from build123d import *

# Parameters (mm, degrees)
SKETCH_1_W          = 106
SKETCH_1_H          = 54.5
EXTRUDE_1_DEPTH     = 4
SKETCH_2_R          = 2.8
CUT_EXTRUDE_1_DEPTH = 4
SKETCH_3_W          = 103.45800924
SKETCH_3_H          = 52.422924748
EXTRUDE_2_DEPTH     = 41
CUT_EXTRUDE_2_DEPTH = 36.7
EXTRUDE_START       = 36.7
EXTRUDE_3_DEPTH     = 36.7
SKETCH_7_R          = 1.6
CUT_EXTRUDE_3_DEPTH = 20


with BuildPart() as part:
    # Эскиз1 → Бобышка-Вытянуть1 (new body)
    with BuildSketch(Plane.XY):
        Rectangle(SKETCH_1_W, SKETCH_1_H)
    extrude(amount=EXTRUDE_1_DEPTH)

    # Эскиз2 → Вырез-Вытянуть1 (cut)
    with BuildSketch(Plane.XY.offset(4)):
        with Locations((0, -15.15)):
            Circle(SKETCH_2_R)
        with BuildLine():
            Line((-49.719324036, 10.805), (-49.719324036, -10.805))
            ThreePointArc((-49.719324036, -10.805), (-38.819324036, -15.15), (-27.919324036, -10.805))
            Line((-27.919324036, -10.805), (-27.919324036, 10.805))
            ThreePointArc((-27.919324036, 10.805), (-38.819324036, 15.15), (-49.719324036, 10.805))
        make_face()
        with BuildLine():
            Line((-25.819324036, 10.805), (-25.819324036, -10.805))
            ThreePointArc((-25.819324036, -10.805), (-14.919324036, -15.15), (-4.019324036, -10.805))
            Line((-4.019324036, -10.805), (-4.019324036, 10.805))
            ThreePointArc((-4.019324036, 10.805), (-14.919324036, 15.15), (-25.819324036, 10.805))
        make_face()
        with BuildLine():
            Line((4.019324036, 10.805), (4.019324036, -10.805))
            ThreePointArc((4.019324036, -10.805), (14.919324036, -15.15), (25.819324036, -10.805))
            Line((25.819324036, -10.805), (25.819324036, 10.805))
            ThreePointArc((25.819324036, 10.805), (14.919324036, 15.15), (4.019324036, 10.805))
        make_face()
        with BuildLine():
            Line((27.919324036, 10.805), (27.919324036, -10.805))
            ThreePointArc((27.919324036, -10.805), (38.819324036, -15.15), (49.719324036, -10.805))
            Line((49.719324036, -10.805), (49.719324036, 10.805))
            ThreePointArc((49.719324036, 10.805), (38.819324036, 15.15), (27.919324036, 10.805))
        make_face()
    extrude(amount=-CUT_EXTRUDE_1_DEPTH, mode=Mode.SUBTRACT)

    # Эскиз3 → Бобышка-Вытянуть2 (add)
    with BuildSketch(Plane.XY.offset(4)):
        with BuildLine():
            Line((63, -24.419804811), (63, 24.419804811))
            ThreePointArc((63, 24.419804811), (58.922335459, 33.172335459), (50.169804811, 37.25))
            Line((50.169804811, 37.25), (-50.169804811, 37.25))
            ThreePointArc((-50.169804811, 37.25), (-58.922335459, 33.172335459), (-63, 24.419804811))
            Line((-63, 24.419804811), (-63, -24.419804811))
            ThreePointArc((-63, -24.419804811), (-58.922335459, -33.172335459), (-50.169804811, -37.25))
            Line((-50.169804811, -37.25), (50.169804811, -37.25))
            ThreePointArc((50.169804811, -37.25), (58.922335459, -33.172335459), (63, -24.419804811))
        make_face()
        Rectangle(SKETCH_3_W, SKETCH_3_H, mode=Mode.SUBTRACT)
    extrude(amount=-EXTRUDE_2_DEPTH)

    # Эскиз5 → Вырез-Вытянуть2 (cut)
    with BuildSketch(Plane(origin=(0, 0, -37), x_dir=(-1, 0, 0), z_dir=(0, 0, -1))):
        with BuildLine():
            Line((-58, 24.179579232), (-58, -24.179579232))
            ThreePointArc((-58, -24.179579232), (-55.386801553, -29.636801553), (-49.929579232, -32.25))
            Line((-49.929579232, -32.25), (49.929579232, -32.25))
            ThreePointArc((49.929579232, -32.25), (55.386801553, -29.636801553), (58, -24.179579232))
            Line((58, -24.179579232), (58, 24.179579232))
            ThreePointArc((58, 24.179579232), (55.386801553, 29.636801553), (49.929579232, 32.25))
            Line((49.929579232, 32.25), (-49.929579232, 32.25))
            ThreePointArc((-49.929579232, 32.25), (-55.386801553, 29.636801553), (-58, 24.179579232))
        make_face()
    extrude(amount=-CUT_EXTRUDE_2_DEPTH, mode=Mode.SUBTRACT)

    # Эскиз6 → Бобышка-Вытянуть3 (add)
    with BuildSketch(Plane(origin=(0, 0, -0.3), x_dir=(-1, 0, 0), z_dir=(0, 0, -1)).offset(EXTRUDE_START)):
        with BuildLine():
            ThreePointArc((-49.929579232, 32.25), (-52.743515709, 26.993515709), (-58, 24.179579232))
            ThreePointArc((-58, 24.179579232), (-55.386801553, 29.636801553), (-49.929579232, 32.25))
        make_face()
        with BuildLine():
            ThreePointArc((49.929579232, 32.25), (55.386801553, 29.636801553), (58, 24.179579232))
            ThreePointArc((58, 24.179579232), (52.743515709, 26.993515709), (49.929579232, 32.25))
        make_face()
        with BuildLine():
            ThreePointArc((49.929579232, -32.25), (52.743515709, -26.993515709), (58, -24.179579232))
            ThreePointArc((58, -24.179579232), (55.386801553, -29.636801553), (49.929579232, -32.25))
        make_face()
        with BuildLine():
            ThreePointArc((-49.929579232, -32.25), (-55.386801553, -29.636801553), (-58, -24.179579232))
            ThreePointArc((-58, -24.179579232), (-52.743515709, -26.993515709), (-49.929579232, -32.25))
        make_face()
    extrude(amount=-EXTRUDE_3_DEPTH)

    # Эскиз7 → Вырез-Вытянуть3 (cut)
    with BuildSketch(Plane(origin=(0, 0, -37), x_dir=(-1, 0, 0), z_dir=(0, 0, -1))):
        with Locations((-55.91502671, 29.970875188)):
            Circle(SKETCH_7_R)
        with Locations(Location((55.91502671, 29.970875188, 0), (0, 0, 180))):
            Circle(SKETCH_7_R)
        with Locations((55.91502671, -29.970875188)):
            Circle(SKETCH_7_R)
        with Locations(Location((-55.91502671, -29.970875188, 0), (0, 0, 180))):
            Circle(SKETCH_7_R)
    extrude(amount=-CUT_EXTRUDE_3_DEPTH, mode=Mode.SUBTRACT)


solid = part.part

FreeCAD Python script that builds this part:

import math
import FreeCAD as App
import Part
import Sketcher

V = App.Vector

doc = App.newDocument("Part")
body = doc.addObject("PartDesign::Body", "Body")

# Sketch on XY plane
sketch1 = body.newObject("Sketcher::SketchObject", "Sketch")
sketch1.AttachmentSupport = (doc.getObject("XY_Plane"), [""])
sketch1.MapMode = "FlatFace"
sketch1.addGeometry(Part.LineSegment(V(-53, 27, 0), V(-53, -27, 0)), False)
sketch1.addGeometry(Part.LineSegment(V(-53, -27, 0), V(53, -27, 0)), False)
sketch1.addGeometry(Part.LineSegment(V(53, -27, 0), V(53, 27, 0)), False)
sketch1.addGeometry(Part.LineSegment(V(53, 27, 0), V(-53, 27, 0)), False)
sketch1.addConstraint(Sketcher.Constraint("Coincident", 0, 2, 1, 1))
sketch1.addConstraint(Sketcher.Constraint("Coincident", 1, 2, 2, 1))
sketch1.addConstraint(Sketcher.Constraint("Coincident", 2, 2, 3, 1))
sketch1.addConstraint(Sketcher.Constraint("Coincident", 3, 2, 0, 1))
sketch1.addConstraint(Sketcher.Constraint("Vertical", 0))
sketch1.addConstraint(Sketcher.Constraint("Horizontal", 1))
sketch1.addConstraint(Sketcher.Constraint("Vertical", 2))
sketch1.addConstraint(Sketcher.Constraint("Horizontal", 3))
sketch1.addConstraint(Sketcher.Constraint("Symmetric", 0, 2, 2, 2, -1, 1))
sketch1.addConstraint(Sketcher.Constraint("DistanceX", 1, 1, 1, 2, 106.0))
sketch1.addConstraint(Sketcher.Constraint("DistanceY", 0, 2, 0, 1, 54.5))
pad1 = body.newObject("PartDesign::Pad", "Pad")
pad1.Profile = sketch1
pad1.Length = 4

# Sketch on XY plane
sketch2 = body.newObject("Sketcher::SketchObject", "Sketch001")
sketch2.AttachmentSupport = (doc.getObject("XY_Plane"), [""])
sketch2.MapMode = "FlatFace"
sketch2.AttachmentOffset = App.Placement(V(0, 0, 4), App.Rotation())
sketch2.addGeometry(Part.Circle(V(0, -15.2, 0), V(0, 0, 1), 2.8), False)
sketch2.addGeometry(Part.LineSegment(V(-49.7, 10.8, 0), V(-49.7, -10.8, 0)), False)
sketch2.addGeometry(Part.ArcOfCircle(Part.Circle(V(-38.8, 0.7, 0), V(0, 0, 1), 15.8), math.radians(-133), math.radians(-47)), False)
sketch2.addGeometry(Part.LineSegment(V(-27.9, -10.8, 0), V(-27.9, 10.8, 0)), False)
sketch2.addGeometry(Part.ArcOfCircle(Part.Circle(V(-38.8, -0.7, 0), V(0, 0, 1), 15.8), math.radians(47), math.radians(133)), False)
sketch2.addGeometry(Part.LineSegment(V(-25.8, 10.8, 0), V(-25.8, -10.8, 0)), False)
sketch2.addGeometry(Part.ArcOfCircle(Part.Circle(V(-14.9, 0.7, 0), V(0, 0, 1), 15.8), math.radians(-133), math.radians(-47)), False)
sketch2.addGeometry(Part.LineSegment(V(-4, -10.8, 0), V(-4, 10.8, 0)), False)
sketch2.addGeometry(Part.ArcOfCircle(Part.Circle(V(-14.9, -0.7, 0), V(0, 0, 1), 15.8), math.radians(47), math.radians(133)), False)
sketch2.addGeometry(Part.LineSegment(V(4, 10.8, 0), V(4, -10.8, 0)), False)
sketch2.addGeometry(Part.ArcOfCircle(Part.Circle(V(14.9, 0.7, 0), V(0, 0, 1), 15.8), math.radians(-133), math.radians(-47)), False)
sketch2.addGeometry(Part.LineSegment(V(25.8, -10.8, 0), V(25.8, 10.8, 0)), False)
sketch2.addGeometry(Part.ArcOfCircle(Part.Circle(V(14.9, -0.7, 0), V(0, 0, 1), 15.8), math.radians(47), math.radians(133)), False)
sketch2.addGeometry(Part.LineSegment(V(27.9, 10.8, 0), V(27.9, -10.8, 0)), False)
sketch2.addGeometry(Part.ArcOfCircle(Part.Circle(V(38.8, 0.7, 0), V(0, 0, 1), 15.8), math.radians(-133), math.radians(-47)), False)
sketch2.addGeometry(Part.LineSegment(V(49.7, -10.8, 0), V(49.7, 10.8, 0)), False)
sketch2.addGeometry(Part.ArcOfCircle(Part.Circle(V(38.8, -0.7, 0), V(0, 0, 1), 15.8), math.radians(47), math.radians(133)), False)
sketch2.addConstraint(Sketcher.Constraint("Coincident", 1, 2, 2, 1))
sketch2.addConstraint(Sketcher.Constraint("Coincident", 2, 2, 3, 1))
sketch2.addConstraint(Sketcher.Constraint("Coincident", 3, 2, 4, 1))
sketch2.addConstraint(Sketcher.Constraint("Coincident", 4, 2, 1, 1))
sketch2.addConstraint(Sketcher.Constraint("Coincident", 5, 2, 6, 1))
sketch2.addConstraint(Sketcher.Constraint("Coincident", 6, 2, 7, 1))
sketch2.addConstraint(Sketcher.Constraint("Coincident", 7, 2, 8, 1))
sketch2.addConstraint(Sketcher.Constraint("Coincident", 8, 2, 5, 1))
sketch2.addConstraint(Sketcher.Constraint("Coincident", 9, 2, 10, 1))
sketch2.addConstraint(Sketcher.Constraint("Coincident", 10, 2, 11, 1))
sketch2.addConstraint(Sketcher.Constraint("Coincident", 11, 2, 12, 1))
sketch2.addConstraint(Sketcher.Constraint("Coincident", 12, 2, 9, 1))
sketch2.addConstraint(Sketcher.Constraint("Coincident", 13, 2, 14, 1))
sketch2.addConstraint(Sketcher.Constraint("Coincident", 14, 2, 15, 1))
sketch2.addConstraint(Sketcher.Constraint("Coincident", 15, 2, 16, 1))
sketch2.addConstraint(Sketcher.Constraint("Coincident", 16, 2, 13, 1))
sketch2.addConstraint(Sketcher.Constraint("Vertical", 1))
sketch2.addConstraint(Sketcher.Constraint("Vertical", 3))
sketch2.addConstraint(Sketcher.Constraint("Vertical", 5))
sketch2.addConstraint(Sketcher.Constraint("Vertical", 7))
sketch2.addConstraint(Sketcher.Constraint("Vertical", 9))
sketch2.addConstraint(Sketcher.Constraint("Vertical", 11))
sketch2.addConstraint(Sketcher.Constraint("Vertical", 13))
sketch2.addConstraint(Sketcher.Constraint("Vertical", 15))
sketch2.addConstraint(Sketcher.Constraint("Equal", 2, 4))
sketch2.addConstraint(Sketcher.Constraint("Equal", 4, 6))
sketch2.addConstraint(Sketcher.Constraint("Equal", 6, 8))
sketch2.addConstraint(Sketcher.Constraint("Equal", 8, 10))
sketch2.addConstraint(Sketcher.Constraint("Equal", 10, 12))
sketch2.addConstraint(Sketcher.Constraint("Equal", 12, 14))
sketch2.addConstraint(Sketcher.Constraint("Equal", 14, 16))
sketch2.addConstraint(Sketcher.Constraint("Symmetric", 8, 3, 10, 3, -1, 1))
sketch2.addConstraint(Sketcher.Constraint("Symmetric", 6, 3, 12, 3, -1, 1))
sketch2.addConstraint(Sketcher.Constraint("Symmetric", 4, 3, 14, 3, -1, 1))
sketch2.addConstraint(Sketcher.Constraint("Symmetric", 2, 3, 16, 3, -1, 1))
sketch2.addConstraint(Sketcher.Constraint("Symmetric", 6, 3, 10, 3, -2))
sketch2.addConstraint(Sketcher.Constraint("Symmetric", 2, 3, 14, 3, -2))
sketch2.addConstraint(Sketcher.Constraint("PointOnObject", 0, 3, -2))
sketch2.addConstraint(Sketcher.Constraint("Horizontal", 2, 3, 6, 3))
sketch2.addConstraint(Sketcher.Constraint("Horizontal", 1, 2, 2, 2))
sketch2.addConstraint(Sketcher.Constraint("Horizontal", 2, 2, 5, 2))
sketch2.addConstraint(Sketcher.Constraint("Horizontal", 5, 2, 6, 2))
sketch2.addConstraint(Sketcher.Constraint("Horizontal", 6, 2, 9, 2))
sketch2.addConstraint(Sketcher.Constraint("Horizontal", 9, 2, 10, 2))
sketch2.addConstraint(Sketcher.Constraint("Horizontal", 10, 2, 13, 2))
sketch2.addConstraint(Sketcher.Constraint("Horizontal", 13, 2, 14, 2))
sketch2.addConstraint(Sketcher.Constraint("Diameter", 0, 5.6))
sketch2.addConstraint(Sketcher.Constraint("DistanceX", 2, 2, 8, 3, 13.0))
sketch2.addConstraint(Sketcher.Constraint("DistanceY", 1, 2, 1, 1, 21.61))
sketch2.addConstraint(Sketcher.Constraint("DistanceX", 2, 3, 6, 3, 23.9))
sketch2.addConstraint(Sketcher.Constraint("DistanceY", 0, 3, -1, 1, 15.15))
sketch2.addConstraint(Sketcher.Constraint("Radius", 2, 15.844537))
sketch2.addConstraint(Sketcher.Constraint("DistanceX", 6, 3, 10, 3, 29.838648))
pocket1 = body.newObject("PartDesign::Pocket", "Pocket")
pocket1.Profile = sketch2
pocket1.Length = 4

# Sketch on XY plane
sketch3 = body.newObject("Sketcher::SketchObject", "Sketch002")
sketch3.AttachmentSupport = (doc.getObject("XY_Plane"), [""])
sketch3.MapMode = "FlatFace"
sketch3.AttachmentOffset = App.Placement(V(0, 0, 4), App.Rotation())
sketch3.addGeometry(Part.LineSegment(V(63, -24, 0), V(63, 24, 0)), False)
sketch3.addGeometry(Part.ArcOfCircle(Part.Circle(V(49, 23, 0), V(0, 0, 1), 14), math.radians(5), math.radians(85)), False)
sketch3.addGeometry(Part.LineSegment(V(50, 37, 0), V(-50, 37, 0)), False)
sketch3.addGeometry(Part.ArcOfCircle(Part.Circle(V(-49, 23, 0), V(0, 0, 1), 14), math.radians(95), math.radians(175)), False)
sketch3.addGeometry(Part.LineSegment(V(-63, 24, 0), V(-63, -24, 0)), False)
sketch3.addGeometry(Part.ArcOfCircle(Part.Circle(V(-49, -23, 0), V(0, 0, 1), 14), math.radians(-175), math.radians(-95)), False)
sketch3.addGeometry(Part.LineSegment(V(-50, -37, 0), V(50, -37, 0)), False)
sketch3.addGeometry(Part.ArcOfCircle(Part.Circle(V(49, -23, 0), V(0, 0, 1), 14), math.radians(-85), math.radians(-5)), False)
sketch3.addGeometry(Part.LineSegment(V(52, -26, 0), V(-52, -26, 0)), False)
sketch3.addGeometry(Part.LineSegment(V(-52, -26, 0), V(-52, 26, 0)), False)
sketch3.addGeometry(Part.LineSegment(V(-52, 26, 0), V(52, 26, 0)), False)
sketch3.addGeometry(Part.LineSegment(V(52, 26, 0), V(52, -26, 0)), False)
sketch3.addConstraint(Sketcher.Constraint("Coincident", 0, 2, 1, 1))
sketch3.addConstraint(Sketcher.Constraint("Coincident", 1, 2, 2, 1))
sketch3.addConstraint(Sketcher.Constraint("Coincident", 2, 2, 3, 1))
sketch3.addConstraint(Sketcher.Constraint("Coincident", 3, 2, 4, 1))
sketch3.addConstraint(Sketcher.Constraint("Coincident", 4, 2, 5, 1))
sketch3.addConstraint(Sketcher.Constraint("Coincident", 5, 2, 6, 1))
sketch3.addConstraint(Sketcher.Constraint("Coincident", 6, 2, 7, 1))
sketch3.addConstraint(Sketcher.Constraint("Coincident", 7, 2, 0, 1))
sketch3.addConstraint(Sketcher.Constraint("Coincident", 8, 2, 9, 1))
sketch3.addConstraint(Sketcher.Constraint("Coincident", 9, 2, 10, 1))
sketch3.addConstraint(Sketcher.Constraint("Coincident", 10, 2, 11, 1))
sketch3.addConstraint(Sketcher.Constraint("Coincident", 11, 2, 8, 1))
sketch3.addConstraint(Sketcher.Constraint("Vertical", 0))
sketch3.addConstraint(Sketcher.Constraint("Horizontal", 2))
sketch3.addConstraint(Sketcher.Constraint("Vertical", 4))
sketch3.addConstraint(Sketcher.Constraint("Horizontal", 6))
sketch3.addConstraint(Sketcher.Constraint("Horizontal", 8))
sketch3.addConstraint(Sketcher.Constraint("Vertical", 9))
sketch3.addConstraint(Sketcher.Constraint("Horizontal", 10))
sketch3.addConstraint(Sketcher.Constraint("Vertical", 11))
sketch3.addConstraint(Sketcher.Constraint("Equal", 1, 3))
sketch3.addConstraint(Sketcher.Constraint("Equal", 3, 5))
sketch3.addConstraint(Sketcher.Constraint("Equal", 5, 7))
sketch3.addConstraint(Sketcher.Constraint("Symmetric", 1, 3, 5, 3, -1, 1))
sketch3.addConstraint(Sketcher.Constraint("Symmetric", 3, 3, 7, 3, -1, 1))
sketch3.addConstraint(Sketcher.Constraint("Symmetric", 8, 2, 10, 2, -1, 1))
sketch3.addConstraint(Sketcher.Constraint("Symmetric", 1, 3, 3, 3, -2))
sketch3.addConstraint(Sketcher.Constraint("Horizontal", 0, 2, 3, 2))
sketch3.addConstraint(Sketcher.Constraint("Vertical", 2, 2, 5, 2))
sketch3.addConstraint(Sketcher.Constraint("DistanceX", -1, 1, 0, 2, 63.0))
sketch3.addConstraint(Sketcher.Constraint("DistanceY", 5, 2, 2, 2, 74.5))
sketch3.addConstraint(Sketcher.Constraint("Radius", 1, 14.102328))
sketch3.addConstraint(Sketcher.Constraint("DistanceX", 2, 2, 2, 1, 100.33961))
sketch3.addConstraint(Sketcher.Constraint("DistanceX", 8, 2, 8, 1, 103.458009))
sketch3.addConstraint(Sketcher.Constraint("DistanceY", 0, 1, 0, 2, 48.83961))
sketch3.addConstraint(Sketcher.Constraint("DistanceY", 9, 1, 9, 2, 52.422925))
pad2 = body.newObject("PartDesign::Pad", "Pad001")
pad2.Profile = sketch3
pad2.Length = 41
pad2.Reversed = True

# Sketch on XY plane
sketch4 = body.newObject("Sketcher::SketchObject", "Sketch003")
sketch4.AttachmentSupport = (doc.getObject("XY_Plane"), [""])
sketch4.MapMode = "FlatFace"
sketch4.AttachmentOffset = App.Placement(V(0, 0, -37), App.Rotation())
sketch4.addGeometry(Part.LineSegment(V(58, 24, 0), V(58, -24, 0)), False)
sketch4.addGeometry(Part.ArcOfCircle(Part.Circle(V(49, -23, 0), V(0, 0, 1), 9), math.radians(-84), math.radians(-6)), False)
sketch4.addGeometry(Part.LineSegment(V(50, -32, 0), V(-50, -32, 0)), False)
sketch4.addGeometry(Part.ArcOfCircle(Part.Circle(V(-49, -23, 0), V(0, 0, 1), 9), math.radians(-174), math.radians(-96)), False)
sketch4.addGeometry(Part.LineSegment(V(-58, -24, 0), V(-58, 24, 0)), False)
sketch4.addGeometry(Part.ArcOfCircle(Part.Circle(V(-49, 23, 0), V(0, 0, 1), 9), math.radians(96), math.radians(174)), False)
sketch4.addGeometry(Part.LineSegment(V(-50, 32, 0), V(50, 32, 0)), False)
sketch4.addGeometry(Part.ArcOfCircle(Part.Circle(V(49, 23, 0), V(0, 0, 1), 9), math.radians(6), math.radians(84)), False)
sketch4.addConstraint(Sketcher.Constraint("Coincident", 0, 2, 1, 2))
sketch4.addConstraint(Sketcher.Constraint("Coincident", 1, 1, 2, 1))
sketch4.addConstraint(Sketcher.Constraint("Coincident", 2, 2, 3, 2))
sketch4.addConstraint(Sketcher.Constraint("Coincident", 3, 1, 4, 1))
sketch4.addConstraint(Sketcher.Constraint("Coincident", 4, 2, 5, 2))
sketch4.addConstraint(Sketcher.Constraint("Coincident", 5, 1, 6, 1))
sketch4.addConstraint(Sketcher.Constraint("Coincident", 6, 2, 7, 2))
sketch4.addConstraint(Sketcher.Constraint("Coincident", 7, 1, 0, 1))
sketch4.addConstraint(Sketcher.Constraint("Vertical", 0))
sketch4.addConstraint(Sketcher.Constraint("Horizontal", 2))
sketch4.addConstraint(Sketcher.Constraint("Vertical", 4))
sketch4.addConstraint(Sketcher.Constraint("Horizontal", 6))
sketch4.addConstraint(Sketcher.Constraint("Equal", 1, 3))
sketch4.addConstraint(Sketcher.Constraint("Equal", 3, 5))
sketch4.addConstraint(Sketcher.Constraint("Equal", 5, 7))
sketch4.addConstraint(Sketcher.Constraint("Symmetric", 1, 3, 5, 3, -1, 1))
sketch4.addConstraint(Sketcher.Constraint("Symmetric", 3, 3, 7, 3, -1, 1))
sketch4.addConstraint(Sketcher.Constraint("Symmetric", 1, 3, 3, 3, -2))
sketch4.addConstraint(Sketcher.Constraint("Horizontal", 0, 2, 3, 1))
sketch4.addConstraint(Sketcher.Constraint("Vertical", 2, 2, 5, 1))
sketch4.addConstraint(Sketcher.Constraint("DistanceX", -1, 1, 0, 2, 58.0))
sketch4.addConstraint(Sketcher.Constraint("DistanceY", 2, 2, 5, 1, 64.5))
sketch4.addConstraint(Sketcher.Constraint("Radius", 1, 9.102328))
sketch4.addConstraint(Sketcher.Constraint("DistanceX", 2, 2, 2, 1, 99.859158))
sketch4.addConstraint(Sketcher.Constraint("DistanceY", 0, 2, 0, 1, 48.359158))
pocket2 = body.newObject("PartDesign::Pocket", "Pocket001")
pocket2.Profile = sketch4
pocket2.Length = 36.7
pocket2.Reversed = True

# Sketch on XY plane
sketch5 = body.newObject("Sketcher::SketchObject", "Sketch004")
sketch5.AttachmentSupport = (doc.getObject("XY_Plane"), [""])
sketch5.MapMode = "FlatFace"
sketch5.AttachmentOffset = App.Placement(V(0, 0, -37), App.Rotation())
sketch5.addGeometry(Part.ArcOfCircle(Part.Circle(V(60, 34, 0), V(0, 0, 1), 10), math.radians(-169), math.radians(-101)), False)
sketch5.addGeometry(Part.ArcOfCircle(Part.Circle(V(49, 23, 0), V(0, 0, 1), 9), math.radians(6), math.radians(84)), False)
sketch5.addGeometry(Part.ArcOfCircle(Part.Circle(V(-49, 23, 0), V(0, 0, 1), 9), math.radians(96), math.radians(174)), False)
sketch5.addGeometry(Part.ArcOfCircle(Part.Circle(V(-60, 34, 0), V(0, 0, 1), 10), math.radians(-79), math.radians(-11)), False)
sketch5.addGeometry(Part.ArcOfCircle(Part.Circle(V(-60, -34, 0), V(0, 0, 1), 10), math.radians(11), math.radians(79)), False)
sketch5.addGeometry(Part.ArcOfCircle(Part.Circle(V(-49, -23, 0), V(0, 0, 1), 9), math.radians(-174), math.radians(-96)), False)
sketch5.addGeometry(Part.ArcOfCircle(Part.Circle(V(49, -23, 0), V(0, 0, 1), 9), math.radians(-84), math.radians(-6)), False)
sketch5.addGeometry(Part.ArcOfCircle(Part.Circle(V(60, -34, 0), V(0, 0, 1), 10), math.radians(101), math.radians(169)), False)
sketch5.addConstraint(Sketcher.Constraint("Coincident", 0, 1, 1, 2))
sketch5.addConstraint(Sketcher.Constraint("Coincident", 1, 1, 0, 2))
sketch5.addConstraint(Sketcher.Constraint("Coincident", 2, 1, 3, 2))
sketch5.addConstraint(Sketcher.Constraint("Coincident", 3, 1, 2, 2))
sketch5.addConstraint(Sketcher.Constraint("Coincident", 4, 1, 5, 2))
sketch5.addConstraint(Sketcher.Constraint("Coincident", 5, 1, 4, 2))
sketch5.addConstraint(Sketcher.Constraint("Coincident", 6, 1, 7, 2))
sketch5.addConstraint(Sketcher.Constraint("Coincident", 7, 1, 6, 2))
sketch5.addConstraint(Sketcher.Constraint("Equal", 1, 2))
sketch5.addConstraint(Sketcher.Constraint("Equal", 0, 3))
sketch5.addConstraint(Sketcher.Constraint("Equal", 3, 4))
sketch5.addConstraint(Sketcher.Constraint("Equal", 2, 5))
sketch5.addConstraint(Sketcher.Constraint("Equal", 5, 6))
sketch5.addConstraint(Sketcher.Constraint("Equal", 4, 7))
sketch5.addConstraint(Sketcher.Constraint("Symmetric", 0, 3, 4, 3, -1, 1))
sketch5.addConstraint(Sketcher.Constraint("Symmetric", 1, 3, 5, 3, -1, 1))
sketch5.addConstraint(Sketcher.Constraint("Symmetric", 2, 3, 6, 3, -1, 1))
sketch5.addConstraint(Sketcher.Constraint("Symmetric", 3, 3, 7, 3, -1, 1))
sketch5.addConstraint(Sketcher.Constraint("Symmetric", 1, 3, 2, 3, -2))
sketch5.addConstraint(Sketcher.Constraint("Symmetric", 0, 3, 3, 3, -2))
sketch5.addConstraint(Sketcher.Constraint("DistanceX", -1, 1, 1, 1, 58.0))
sketch5.addConstraint(Sketcher.Constraint("DistanceY", 4, 1, 2, 1, 64.5))
sketch5.addConstraint(Sketcher.Constraint("Radius", 0, 10.291239))
sketch5.addConstraint(Sketcher.Constraint("Radius", 1, 9.102328))
sketch5.addConstraint(Sketcher.Constraint("DistanceY", 7, 3, 1, 1, 58.4501))
sketch5.addConstraint(Sketcher.Constraint("DistanceX", -1, 1, 0, 3, 60.020521))
pad3 = body.newObject("PartDesign::Pad", "Pad002")
pad3.Profile = sketch5
pad3.Length = 36.7

# Sketch on XY plane
sketch6 = body.newObject("Sketcher::SketchObject", "Sketch005")
sketch6.AttachmentSupport = (doc.getObject("XY_Plane"), [""])
sketch6.MapMode = "FlatFace"
sketch6.AttachmentOffset = App.Placement(V(0, 0, -37), App.Rotation())
sketch6.addGeometry(Part.Circle(V(55.9, 30, 0), V(0, 0, 1), 1.6), False)
sketch6.addGeometry(Part.Circle(V(-55.9, 30, 0), V(0, 0, 1), 1.6), False)
sketch6.addGeometry(Part.Circle(V(-55.9, -30, 0), V(0, 0, 1), 1.6), False)
sketch6.addGeometry(Part.Circle(V(55.9, -30, 0), V(0, 0, 1), 1.6), False)
sketch6.addConstraint(Sketcher.Constraint("Equal", 0, 1))
sketch6.addConstraint(Sketcher.Constraint("Equal", 1, 2))
sketch6.addConstraint(Sketcher.Constraint("Equal", 2, 3))
sketch6.addConstraint(Sketcher.Constraint("Symmetric", 0, 3, 2, 3, -1, 1))
sketch6.addConstraint(Sketcher.Constraint("Symmetric", 1, 3, 3, 3, -1, 1))
sketch6.addConstraint(Sketcher.Constraint("Symmetric", 0, 3, 1, 3, -2))
sketch6.addConstraint(Sketcher.Constraint("Diameter", 0, 3.2))
sketch6.addConstraint(Sketcher.Constraint("DistanceY", 2, 3, 1, 3, 59.94175))
sketch6.addConstraint(Sketcher.Constraint("DistanceX", -1, 1, 0, 3, 55.915027))
pocket3 = body.newObject("PartDesign::Pocket", "Pocket002")
pocket3.Profile = sketch6
pocket3.Length = 20
pocket3.Reversed = True

doc.recompute()
